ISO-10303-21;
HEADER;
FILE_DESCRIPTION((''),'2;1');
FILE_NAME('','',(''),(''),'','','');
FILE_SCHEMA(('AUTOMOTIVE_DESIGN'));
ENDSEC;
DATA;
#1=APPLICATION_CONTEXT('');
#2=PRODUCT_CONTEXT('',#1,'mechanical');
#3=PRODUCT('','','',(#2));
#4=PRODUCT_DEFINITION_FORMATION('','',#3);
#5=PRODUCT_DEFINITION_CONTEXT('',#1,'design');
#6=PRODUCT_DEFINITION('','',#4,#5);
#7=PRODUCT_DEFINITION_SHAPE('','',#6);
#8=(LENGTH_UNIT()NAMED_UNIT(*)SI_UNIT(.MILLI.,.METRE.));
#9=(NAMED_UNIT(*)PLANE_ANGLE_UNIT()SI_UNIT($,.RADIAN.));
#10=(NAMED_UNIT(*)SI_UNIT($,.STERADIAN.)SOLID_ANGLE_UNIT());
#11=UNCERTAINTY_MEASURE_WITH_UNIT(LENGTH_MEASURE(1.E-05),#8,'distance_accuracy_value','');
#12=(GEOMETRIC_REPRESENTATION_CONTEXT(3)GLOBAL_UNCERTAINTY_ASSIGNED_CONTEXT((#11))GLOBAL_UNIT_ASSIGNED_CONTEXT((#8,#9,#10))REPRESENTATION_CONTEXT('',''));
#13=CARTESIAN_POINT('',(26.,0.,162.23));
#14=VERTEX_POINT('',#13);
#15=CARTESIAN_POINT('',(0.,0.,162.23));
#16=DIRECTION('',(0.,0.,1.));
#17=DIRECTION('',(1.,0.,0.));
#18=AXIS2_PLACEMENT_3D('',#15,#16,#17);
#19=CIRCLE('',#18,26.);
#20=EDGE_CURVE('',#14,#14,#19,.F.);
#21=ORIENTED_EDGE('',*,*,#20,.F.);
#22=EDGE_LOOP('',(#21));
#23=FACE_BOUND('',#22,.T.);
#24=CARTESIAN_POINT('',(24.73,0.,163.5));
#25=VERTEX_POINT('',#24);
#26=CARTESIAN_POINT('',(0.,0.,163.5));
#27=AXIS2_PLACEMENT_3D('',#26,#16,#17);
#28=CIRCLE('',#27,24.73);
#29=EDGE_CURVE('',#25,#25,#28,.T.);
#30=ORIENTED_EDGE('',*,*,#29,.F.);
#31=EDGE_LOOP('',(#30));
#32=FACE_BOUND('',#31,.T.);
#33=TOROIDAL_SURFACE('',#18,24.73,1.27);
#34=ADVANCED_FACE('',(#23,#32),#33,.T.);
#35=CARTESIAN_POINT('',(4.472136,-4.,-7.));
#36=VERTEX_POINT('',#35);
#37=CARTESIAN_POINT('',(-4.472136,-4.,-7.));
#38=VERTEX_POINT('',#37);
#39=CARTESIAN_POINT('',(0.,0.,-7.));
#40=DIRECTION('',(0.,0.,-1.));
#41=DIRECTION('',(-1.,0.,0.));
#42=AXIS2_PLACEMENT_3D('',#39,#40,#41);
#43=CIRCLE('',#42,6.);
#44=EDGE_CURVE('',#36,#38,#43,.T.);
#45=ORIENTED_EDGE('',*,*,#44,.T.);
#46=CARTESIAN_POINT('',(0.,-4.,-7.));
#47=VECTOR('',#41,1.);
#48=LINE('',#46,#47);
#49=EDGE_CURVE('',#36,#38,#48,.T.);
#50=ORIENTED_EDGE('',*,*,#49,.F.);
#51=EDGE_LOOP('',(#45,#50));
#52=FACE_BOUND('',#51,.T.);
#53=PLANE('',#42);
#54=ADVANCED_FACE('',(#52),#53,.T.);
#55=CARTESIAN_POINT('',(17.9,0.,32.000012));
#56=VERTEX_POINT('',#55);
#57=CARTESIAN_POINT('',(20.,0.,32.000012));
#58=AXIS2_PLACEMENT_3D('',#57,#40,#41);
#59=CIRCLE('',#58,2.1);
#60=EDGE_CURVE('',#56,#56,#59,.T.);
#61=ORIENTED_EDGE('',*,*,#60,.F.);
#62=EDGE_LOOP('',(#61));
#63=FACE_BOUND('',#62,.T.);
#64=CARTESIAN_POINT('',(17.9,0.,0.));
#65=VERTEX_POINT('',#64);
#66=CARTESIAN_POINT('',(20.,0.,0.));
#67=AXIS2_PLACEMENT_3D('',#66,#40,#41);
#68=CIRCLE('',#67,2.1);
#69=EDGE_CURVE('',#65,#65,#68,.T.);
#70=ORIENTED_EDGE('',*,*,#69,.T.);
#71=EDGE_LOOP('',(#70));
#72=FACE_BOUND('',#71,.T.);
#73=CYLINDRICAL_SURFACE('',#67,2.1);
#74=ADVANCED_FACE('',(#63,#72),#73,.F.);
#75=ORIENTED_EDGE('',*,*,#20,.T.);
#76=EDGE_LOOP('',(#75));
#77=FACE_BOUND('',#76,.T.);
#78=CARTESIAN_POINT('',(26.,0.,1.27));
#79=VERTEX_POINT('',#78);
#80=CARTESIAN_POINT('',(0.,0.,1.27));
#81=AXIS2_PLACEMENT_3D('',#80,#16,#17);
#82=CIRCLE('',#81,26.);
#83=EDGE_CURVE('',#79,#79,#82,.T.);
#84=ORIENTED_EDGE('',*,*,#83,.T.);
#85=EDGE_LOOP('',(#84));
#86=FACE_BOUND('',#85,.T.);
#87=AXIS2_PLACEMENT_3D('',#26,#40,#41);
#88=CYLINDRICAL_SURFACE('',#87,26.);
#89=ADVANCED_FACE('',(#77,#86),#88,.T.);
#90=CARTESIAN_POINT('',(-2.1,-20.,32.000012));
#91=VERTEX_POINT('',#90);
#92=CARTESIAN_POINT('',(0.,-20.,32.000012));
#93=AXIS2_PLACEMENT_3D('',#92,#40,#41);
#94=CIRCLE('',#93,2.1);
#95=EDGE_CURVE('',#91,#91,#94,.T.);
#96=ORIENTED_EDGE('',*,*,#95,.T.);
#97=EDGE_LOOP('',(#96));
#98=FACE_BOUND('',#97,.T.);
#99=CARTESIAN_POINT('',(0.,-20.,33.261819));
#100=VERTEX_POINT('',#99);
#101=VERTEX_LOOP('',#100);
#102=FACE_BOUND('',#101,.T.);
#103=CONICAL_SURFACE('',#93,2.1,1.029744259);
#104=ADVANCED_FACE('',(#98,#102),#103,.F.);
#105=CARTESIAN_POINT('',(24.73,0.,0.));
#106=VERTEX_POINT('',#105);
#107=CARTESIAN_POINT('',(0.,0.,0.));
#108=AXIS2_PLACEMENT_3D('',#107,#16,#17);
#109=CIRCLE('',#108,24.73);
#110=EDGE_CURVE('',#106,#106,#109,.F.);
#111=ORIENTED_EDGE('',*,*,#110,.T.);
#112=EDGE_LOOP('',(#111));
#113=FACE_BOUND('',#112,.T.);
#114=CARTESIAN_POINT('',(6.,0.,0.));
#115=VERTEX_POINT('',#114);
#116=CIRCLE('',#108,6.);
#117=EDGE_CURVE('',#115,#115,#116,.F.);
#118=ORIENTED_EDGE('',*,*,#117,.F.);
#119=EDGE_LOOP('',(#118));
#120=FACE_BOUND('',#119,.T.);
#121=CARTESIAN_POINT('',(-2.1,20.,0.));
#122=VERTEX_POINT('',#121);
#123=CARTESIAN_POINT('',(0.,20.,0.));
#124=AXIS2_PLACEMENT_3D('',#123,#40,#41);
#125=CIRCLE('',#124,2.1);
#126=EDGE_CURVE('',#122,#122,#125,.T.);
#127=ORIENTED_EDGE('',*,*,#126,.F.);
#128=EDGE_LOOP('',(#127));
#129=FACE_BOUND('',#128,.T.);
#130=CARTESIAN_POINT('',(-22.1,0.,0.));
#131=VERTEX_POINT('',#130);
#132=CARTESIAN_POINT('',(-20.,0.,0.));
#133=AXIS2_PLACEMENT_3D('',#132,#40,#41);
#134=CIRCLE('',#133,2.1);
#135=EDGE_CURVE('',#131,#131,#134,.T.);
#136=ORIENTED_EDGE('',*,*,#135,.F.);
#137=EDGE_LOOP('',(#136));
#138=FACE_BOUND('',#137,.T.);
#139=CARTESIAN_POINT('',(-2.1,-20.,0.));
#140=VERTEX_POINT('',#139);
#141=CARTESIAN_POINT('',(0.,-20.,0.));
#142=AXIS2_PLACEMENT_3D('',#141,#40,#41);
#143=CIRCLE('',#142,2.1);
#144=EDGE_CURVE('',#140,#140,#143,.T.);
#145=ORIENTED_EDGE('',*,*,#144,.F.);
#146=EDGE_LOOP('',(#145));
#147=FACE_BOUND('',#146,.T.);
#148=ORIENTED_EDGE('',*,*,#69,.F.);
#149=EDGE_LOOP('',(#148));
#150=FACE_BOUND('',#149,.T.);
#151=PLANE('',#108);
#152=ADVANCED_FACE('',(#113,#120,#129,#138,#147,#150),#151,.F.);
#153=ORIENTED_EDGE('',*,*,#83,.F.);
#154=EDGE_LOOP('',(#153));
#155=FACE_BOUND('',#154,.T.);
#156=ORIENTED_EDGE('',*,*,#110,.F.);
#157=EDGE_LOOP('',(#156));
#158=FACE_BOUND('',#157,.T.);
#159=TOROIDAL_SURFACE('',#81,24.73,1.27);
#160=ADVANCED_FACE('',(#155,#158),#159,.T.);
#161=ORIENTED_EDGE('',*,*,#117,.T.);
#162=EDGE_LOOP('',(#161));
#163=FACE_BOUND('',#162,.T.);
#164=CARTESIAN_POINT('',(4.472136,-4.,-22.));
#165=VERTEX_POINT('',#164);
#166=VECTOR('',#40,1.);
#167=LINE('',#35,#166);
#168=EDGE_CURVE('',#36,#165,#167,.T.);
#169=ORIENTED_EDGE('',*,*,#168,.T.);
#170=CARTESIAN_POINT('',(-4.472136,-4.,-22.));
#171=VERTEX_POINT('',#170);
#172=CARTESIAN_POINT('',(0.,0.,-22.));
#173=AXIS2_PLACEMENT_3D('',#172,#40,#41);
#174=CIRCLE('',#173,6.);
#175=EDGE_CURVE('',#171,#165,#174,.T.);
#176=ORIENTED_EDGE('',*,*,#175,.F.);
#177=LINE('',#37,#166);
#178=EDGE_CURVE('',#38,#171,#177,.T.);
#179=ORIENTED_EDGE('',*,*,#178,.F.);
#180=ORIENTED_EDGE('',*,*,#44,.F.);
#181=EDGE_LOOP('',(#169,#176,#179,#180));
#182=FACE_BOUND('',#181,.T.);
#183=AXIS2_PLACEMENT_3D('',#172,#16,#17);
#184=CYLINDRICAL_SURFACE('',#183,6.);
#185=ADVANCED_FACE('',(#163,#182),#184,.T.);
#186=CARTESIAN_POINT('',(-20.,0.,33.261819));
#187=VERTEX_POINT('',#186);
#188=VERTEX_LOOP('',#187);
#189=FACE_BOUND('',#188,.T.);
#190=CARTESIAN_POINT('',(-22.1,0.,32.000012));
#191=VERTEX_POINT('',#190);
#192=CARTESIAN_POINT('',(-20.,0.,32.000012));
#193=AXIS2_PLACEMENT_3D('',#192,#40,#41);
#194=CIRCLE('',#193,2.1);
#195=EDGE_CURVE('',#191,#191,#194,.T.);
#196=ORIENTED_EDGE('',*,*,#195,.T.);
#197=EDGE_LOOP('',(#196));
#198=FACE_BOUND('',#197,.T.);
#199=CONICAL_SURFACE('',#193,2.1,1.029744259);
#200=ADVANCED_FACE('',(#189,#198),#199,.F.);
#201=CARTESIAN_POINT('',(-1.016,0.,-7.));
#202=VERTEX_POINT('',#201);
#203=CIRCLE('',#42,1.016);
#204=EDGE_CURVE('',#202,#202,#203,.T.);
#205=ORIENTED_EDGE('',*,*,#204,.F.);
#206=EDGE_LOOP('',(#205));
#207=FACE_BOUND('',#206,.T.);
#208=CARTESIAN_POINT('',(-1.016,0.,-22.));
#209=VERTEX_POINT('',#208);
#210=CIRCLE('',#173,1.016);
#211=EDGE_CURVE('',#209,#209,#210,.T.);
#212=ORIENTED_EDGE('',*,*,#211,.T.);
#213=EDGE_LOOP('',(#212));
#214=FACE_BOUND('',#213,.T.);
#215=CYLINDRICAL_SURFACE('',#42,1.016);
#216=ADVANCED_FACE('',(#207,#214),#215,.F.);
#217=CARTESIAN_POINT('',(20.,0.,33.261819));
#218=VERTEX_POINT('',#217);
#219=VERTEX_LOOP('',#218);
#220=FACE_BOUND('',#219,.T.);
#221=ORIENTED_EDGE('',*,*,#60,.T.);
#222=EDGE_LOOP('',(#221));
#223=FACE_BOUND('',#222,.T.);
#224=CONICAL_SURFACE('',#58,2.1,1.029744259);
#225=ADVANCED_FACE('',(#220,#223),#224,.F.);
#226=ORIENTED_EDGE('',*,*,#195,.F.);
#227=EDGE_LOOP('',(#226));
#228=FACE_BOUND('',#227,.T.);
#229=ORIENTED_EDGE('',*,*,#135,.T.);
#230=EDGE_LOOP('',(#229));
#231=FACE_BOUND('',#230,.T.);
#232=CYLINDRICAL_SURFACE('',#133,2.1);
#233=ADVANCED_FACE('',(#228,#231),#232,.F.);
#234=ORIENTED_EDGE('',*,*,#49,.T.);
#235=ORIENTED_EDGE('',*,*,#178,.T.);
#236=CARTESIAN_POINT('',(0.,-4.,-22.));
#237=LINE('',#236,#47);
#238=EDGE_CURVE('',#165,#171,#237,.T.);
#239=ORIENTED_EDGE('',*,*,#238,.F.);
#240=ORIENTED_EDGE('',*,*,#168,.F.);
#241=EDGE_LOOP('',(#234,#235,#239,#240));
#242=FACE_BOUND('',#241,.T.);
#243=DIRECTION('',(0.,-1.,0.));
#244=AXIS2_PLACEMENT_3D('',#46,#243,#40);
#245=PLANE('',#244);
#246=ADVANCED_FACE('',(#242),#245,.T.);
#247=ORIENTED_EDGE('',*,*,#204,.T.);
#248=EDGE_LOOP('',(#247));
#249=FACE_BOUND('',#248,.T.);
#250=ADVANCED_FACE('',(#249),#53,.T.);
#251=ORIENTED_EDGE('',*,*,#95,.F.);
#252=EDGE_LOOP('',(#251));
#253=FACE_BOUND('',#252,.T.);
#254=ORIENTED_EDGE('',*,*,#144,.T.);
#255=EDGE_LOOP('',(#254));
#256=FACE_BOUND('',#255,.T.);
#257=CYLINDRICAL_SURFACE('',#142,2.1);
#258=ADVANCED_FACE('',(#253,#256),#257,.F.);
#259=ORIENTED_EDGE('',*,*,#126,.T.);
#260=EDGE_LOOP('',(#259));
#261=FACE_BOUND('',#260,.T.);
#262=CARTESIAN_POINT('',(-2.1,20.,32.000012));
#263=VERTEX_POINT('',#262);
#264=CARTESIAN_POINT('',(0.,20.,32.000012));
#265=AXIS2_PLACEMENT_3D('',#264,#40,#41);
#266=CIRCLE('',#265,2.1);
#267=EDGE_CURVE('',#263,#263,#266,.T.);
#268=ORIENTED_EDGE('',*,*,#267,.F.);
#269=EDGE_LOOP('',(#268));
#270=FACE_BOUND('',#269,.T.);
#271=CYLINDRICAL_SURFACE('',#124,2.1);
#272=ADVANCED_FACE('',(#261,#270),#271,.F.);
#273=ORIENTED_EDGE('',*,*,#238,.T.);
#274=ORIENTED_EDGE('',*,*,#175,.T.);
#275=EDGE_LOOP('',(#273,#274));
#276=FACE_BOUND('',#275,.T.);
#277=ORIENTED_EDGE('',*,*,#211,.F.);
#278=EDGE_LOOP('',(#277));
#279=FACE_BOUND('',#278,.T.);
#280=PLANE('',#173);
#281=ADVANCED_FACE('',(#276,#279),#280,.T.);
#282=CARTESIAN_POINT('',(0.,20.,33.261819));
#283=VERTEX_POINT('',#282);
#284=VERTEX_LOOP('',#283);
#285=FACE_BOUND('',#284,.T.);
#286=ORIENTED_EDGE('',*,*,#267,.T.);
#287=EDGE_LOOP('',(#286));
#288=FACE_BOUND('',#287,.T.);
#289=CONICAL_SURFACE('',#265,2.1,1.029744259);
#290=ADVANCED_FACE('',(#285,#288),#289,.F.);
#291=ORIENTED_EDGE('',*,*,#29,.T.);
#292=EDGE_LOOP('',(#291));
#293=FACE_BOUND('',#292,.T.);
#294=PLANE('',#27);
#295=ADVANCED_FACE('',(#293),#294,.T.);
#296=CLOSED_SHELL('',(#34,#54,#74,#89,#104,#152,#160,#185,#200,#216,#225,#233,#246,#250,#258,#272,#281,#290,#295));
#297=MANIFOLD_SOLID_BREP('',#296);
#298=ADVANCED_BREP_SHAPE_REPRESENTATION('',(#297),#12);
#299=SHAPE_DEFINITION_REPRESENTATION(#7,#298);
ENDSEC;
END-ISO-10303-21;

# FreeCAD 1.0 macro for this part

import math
import FreeCAD as App
import Part
import Sketcher

V = App.Vector
Q = App.Units.Quantity


def edges_at(feature, points):
    """Names of the edges that pass closest to the given points."""
    edges = feature.Shape.Edges
    near = lambda p: min(range(len(edges)), key=lambda i: edges[i].distToShape(Part.Vertex(*p))[0])
    return sorted({f"Edge{near(p) + 1}" for p in points})

doc = App.newDocument("Part")
params = doc.addObject("Spreadsheet::Sheet", "Params")
for row, (alias, value) in enumerate([
    ("sketch1_diameter", "52 mm"),
    ("pad1_length", "163.5 mm"),
    ("sketch2_diameter", "12 mm"),
    ("pad2_length", "22 mm"),
    ("sketch3_radius", "6 mm"),
    ("pocket1_length", "15 mm"),
    ("sketch4_diameter", "4.2 mm"),
    ("hole_diameter", "4.2 mm"),
    ("hole_depth", "32.000012 mm"),
    ("fillet_radius", "1.27 mm"),
], start=1):
    params.set(f"A{row}", alias)
    params.set(f"B{row}", "=" + value)
    params.setAlias(f"B{row}", alias)

body = doc.addObject("PartDesign::Body", "Body")

# Sketch on XY plane
sketch1 = body.newObject("Sketcher::SketchObject", "Sketch")
sketch1.AttachmentSupport = (doc.getObject("XY_Plane"), [""])
sketch1.MapMode = "FlatFace"
sketch1.addGeometry(Part.Circle(V(0, 0, 0), V(0, 0, 1), 26), False)
sketch1.addConstraint(Sketcher.Constraint("Coincident", 0, 3, -1, 1))
sketch1.addConstraint(Sketcher.Constraint("Diameter", 0, Q("52 mm")))
sketch1.setExpression("Constraints[1]", "Params.sketch1_diameter")
pad1 = body.newObject("PartDesign::Pad", "Pad")
pad1.Profile = sketch1
pad1.setExpression("Length", "Params.pad1_length")

# Sketch on XY plane
sketch2 = body.newObject("Sketcher::SketchObject", "Sketch001")
sketch2.AttachmentSupport = (doc.getObject("XY_Plane"), [""])
sketch2.MapMode = "FlatFace"
sketch2.addGeometry(Part.Circle(V(0, 0, 0), V(0, 0, 1), 6), False)
sketch2.addConstraint(Sketcher.Constraint("Coincident", 0, 3, -1, 1))
sketch2.addConstraint(Sketcher.Constraint("Diameter", 0, Q("12 mm")))
sketch2.setExpression("Constraints[1]", "Params.sketch2_diameter")
pad2 = body.newObject("PartDesign::Pad", "Pad001")
pad2.Profile = sketch2
pad2.setExpression("Length", "Params.pad2_length")
pad2.Reversed = True

# Sketch on XY plane
sketch3 = body.newObject("Sketcher::SketchObject", "Sketch002")
sketch3.AttachmentSupport = (doc.getObject("XY_Plane"), [""])
sketch3.MapMode = "FlatFace"
sketch3.AttachmentOffset = App.Placement(V(0, 0, -7), App.Rotation())
sketch3.addGeometry(Part.LineSegment(V(-4.5, -4, 0), V(4.5, -4, 0)), False)
sketch3.addGeometry(Part.ArcOfCircle(Part.Circle(V(0, 0, 0), V(0, 0, 1), 6), math.radians(-138), math.radians(-42)), False)
sketch3.addGeometry(Part.Circle(V(0, 0, 0), V(0, 0, 1), 1), False)
sketch3.addConstraint(Sketcher.Constraint("Coincident", 0, 1, 1, 1))
sketch3.addConstraint(Sketcher.Constraint("Coincident", 1, 2, 0, 2))
sketch3.addConstraint(Sketcher.Constraint("Horizontal", 0))
sketch3.addConstraint(Sketcher.Constraint("Coincident", 1, 3, -1, 1))
sketch3.addConstraint(Sketcher.Constraint("Coincident", 2, 3, -1, 1))
sketch3.addConstraint(Sketcher.Constraint("Radius", 1, Q("6 mm")))
sketch3.addConstraint(Sketcher.Constraint("Diameter", 2, Q("2.032 mm")))
sketch3.addConstraint(Sketcher.Constraint("DistanceY", 0, 1, -1, 1, Q("4 mm")))
sketch3.setExpression("Constraints[5]", "Params.sketch3_radius")
pocket1 = body.newObject("PartDesign::Pocket", "Pocket")
pocket1.Profile = sketch3
pocket1.setExpression("Length", "Params.pocket1_length")

# Sketch on XY plane
sketch4 = body.newObject("Sketcher::SketchObject", "Sketch003")
sketch4.AttachmentSupport = (doc.getObject("XY_Plane"), [""])
sketch4.MapMode = "FlatFace"
sketch4.addGeometry(Part.Circle(V(0, -20, 0), V(0, 0, 1), 2.1), False)
sketch4.addGeometry(Part.Circle(V(20, 0, 0), V(0, 0, 1), 2.1), False)
sketch4.addGeometry(Part.Circle(V(0, 20, 0), V(0, 0, 1), 2.1), False)
sketch4.addGeometry(Part.Circle(V(-20, 0, 0), V(0, 0, 1), 2.1), False)
sketch4.addConstraint(Sketcher.Constraint("Equal", 0, 1))
sketch4.addConstraint(Sketcher.Constraint("Equal", 1, 2))
sketch4.addConstraint(Sketcher.Constraint("Equal", 2, 3))
sketch4.addConstraint(Sketcher.Constraint("Symmetric", 0, 3, 2, 3, -1, 1))
sketch4.addConstraint(Sketcher.Constraint("Symmetric", 1, 3, 3, 3, -1, 1))
sketch4.addConstraint(Sketcher.Constraint("PointOnObject", 0, 3, -2))
sketch4.addConstraint(Sketcher.Constraint("PointOnObject", 1, 3, -1))
sketch4.addConstraint(Sketcher.Constraint("Diameter", 0, Q("4.2 mm")))
sketch4.addConstraint(Sketcher.Constraint("DistanceY", 0, 3, -1, 1, Q("20 mm")))
sketch4.addConstraint(Sketcher.Constraint("DistanceX", -1, 1, 1, 3, Q("20 mm")))
sketch4.setExpression("Constraints[7]", "Params.sketch4_diameter")
doc.recompute()
hole = body.newObject("PartDesign::Hole", "Hole")
hole.Profile = sketch4
hole.ThreadType = "None"
hole.setExpression("Diameter", "Params.hole_diameter")
hole.DepthType = "Dimension"
hole.setExpression("Depth", "Params.hole_depth")
hole.DrillPoint = "Angled"
hole.DrillPointAngle = 118
hole.Reversed = True
doc.recompute()

fillet = body.newObject("PartDesign::Fillet", "Fillet")
fillet.Base = (hole, edges_at(hole, [(-26, 0, 0), (-26, 0, 163.5)]))
fillet.setExpression("Radius", "Params.fillet_radius")

doc.recompute()
